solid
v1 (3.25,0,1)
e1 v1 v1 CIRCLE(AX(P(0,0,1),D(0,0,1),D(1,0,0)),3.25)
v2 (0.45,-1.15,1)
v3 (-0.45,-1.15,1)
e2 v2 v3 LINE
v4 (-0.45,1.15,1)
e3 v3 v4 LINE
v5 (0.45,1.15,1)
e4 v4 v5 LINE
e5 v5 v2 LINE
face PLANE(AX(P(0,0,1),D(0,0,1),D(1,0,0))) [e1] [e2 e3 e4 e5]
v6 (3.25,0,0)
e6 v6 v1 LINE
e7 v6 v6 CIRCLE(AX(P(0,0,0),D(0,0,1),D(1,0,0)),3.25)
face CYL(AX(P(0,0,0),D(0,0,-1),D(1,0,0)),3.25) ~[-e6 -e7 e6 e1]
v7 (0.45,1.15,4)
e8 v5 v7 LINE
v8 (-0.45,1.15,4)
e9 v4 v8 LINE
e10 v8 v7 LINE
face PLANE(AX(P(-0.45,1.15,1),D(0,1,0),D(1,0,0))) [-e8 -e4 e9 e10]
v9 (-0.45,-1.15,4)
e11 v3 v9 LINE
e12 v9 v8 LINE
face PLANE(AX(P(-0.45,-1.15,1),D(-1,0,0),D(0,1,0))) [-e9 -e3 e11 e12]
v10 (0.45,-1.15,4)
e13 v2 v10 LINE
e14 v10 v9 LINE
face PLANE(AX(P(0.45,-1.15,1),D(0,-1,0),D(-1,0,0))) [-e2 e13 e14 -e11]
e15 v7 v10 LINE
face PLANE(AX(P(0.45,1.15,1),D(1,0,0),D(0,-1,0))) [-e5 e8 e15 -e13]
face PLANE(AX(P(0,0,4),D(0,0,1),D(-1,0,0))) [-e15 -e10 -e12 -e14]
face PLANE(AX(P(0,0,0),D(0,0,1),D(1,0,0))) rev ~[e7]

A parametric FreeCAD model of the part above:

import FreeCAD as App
import Part
import Sketcher


def add_polygon(sketch, points):
    """Adds a closed chain of lines whose ends are joined by coincident constraints."""
    first, n = sketch.GeometryCount, len(points)
    for a, b in zip(points, points[1:] + points[:1]):
        sketch.addGeometry(Part.LineSegment(App.Vector(*a, 0), App.Vector(*b, 0)), False)
    for i in range(n):
        sketch.addConstraint(Sketcher.Constraint("Coincident", first + i, 2, first + (i + 1) % n, 1))

doc = App.newDocument("Part")
body = doc.addObject("PartDesign::Body", "Body")

# Sketch on XY plane
sketch1 = body.newObject("Sketcher::SketchObject", "Sketch")
sketch1.AttachmentSupport = (doc.getObject("XY_Plane"), [""])
sketch1.MapMode = "FlatFace"
sketch1.addGeometry(Part.Circle(App.Vector(0, 0, 0), App.Vector(0, 0, 1), 3.25), False)
sketch1.addConstraint(Sketcher.Constraint("Coincident", 0, 3, -1, 1))
sketch1.addConstraint(Sketcher.Constraint("Diameter", 0, 6.5))
pad1 = body.newObject("PartDesign::Pad", "Pad")
pad1.Profile = sketch1
pad1.Length = 1

# Sketch on XY plane
sketch2 = body.newObject("Sketcher::SketchObject", "Sketch001")
sketch2.AttachmentSupport = (doc.getObject("XY_Plane"), [""])
sketch2.MapMode = "FlatFace"
sketch2.AttachmentOffset = App.Placement(App.Vector(0, 0, 1), App.Rotation())
add_polygon(sketch2, [(-0.45, -1.15), (0.45, -1.15), (0.45, 1.15), (-0.45, 1.15)])  # lines 0-3
sketch2.addConstraint(Sketcher.Constraint("Horizontal", 0))
sketch2.addConstraint(Sketcher.Constraint("Vertical", 1))
sketch2.addConstraint(Sketcher.Constraint("Horizontal", 2))
sketch2.addConstraint(Sketcher.Constraint("Vertical", 3))
sketch2.addConstraint(Sketcher.Constraint("Symmetric", 0, 2, 2, 2, -1, 1))
sketch2.addConstraint(Sketcher.Constraint("DistanceX", 0, 1, 0, 2, 0.9))
sketch2.addConstraint(Sketcher.Constraint("DistanceY", 1, 1, 1, 2, 2.3))
pad2 = body.newObject("PartDesign::Pad", "Pad001")
pad2.Profile = sketch2
pad2.Length = 3

doc.recompute()
